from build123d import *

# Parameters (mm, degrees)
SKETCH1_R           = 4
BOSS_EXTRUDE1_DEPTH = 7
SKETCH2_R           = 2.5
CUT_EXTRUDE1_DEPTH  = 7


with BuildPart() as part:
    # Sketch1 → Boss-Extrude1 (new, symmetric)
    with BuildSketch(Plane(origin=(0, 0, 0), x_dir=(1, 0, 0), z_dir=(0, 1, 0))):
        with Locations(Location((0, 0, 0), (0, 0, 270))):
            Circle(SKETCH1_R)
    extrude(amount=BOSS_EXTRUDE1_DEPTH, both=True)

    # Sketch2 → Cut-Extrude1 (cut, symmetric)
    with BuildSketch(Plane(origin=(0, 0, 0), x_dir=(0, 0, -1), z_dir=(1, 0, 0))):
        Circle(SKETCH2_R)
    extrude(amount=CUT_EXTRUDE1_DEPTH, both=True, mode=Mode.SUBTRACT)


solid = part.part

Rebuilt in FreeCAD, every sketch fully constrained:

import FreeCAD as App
import Part
import Sketcher
Q = App.Units.Quantity

doc = App.newDocument("Part")
params = doc.addObject("Spreadsheet::Sheet", "Params")
for row, (alias, value) in enumerate([
    ("sketch1_diameter", "8 mm"),
    ("pad1_length", "14 mm"),
    ("sketch2_diameter", "5 mm"),
    ("pocket1_length", "14 mm"),
], start=1):
    params.set(f"A{row}", alias)
    params.set(f"B{row}", "=" + value)
    params.setAlias(f"B{row}", alias)

body = doc.addObject("PartDesign::Body", "Body")

sketch1 = body.newObject("Sketcher::SketchObject", "Sketch")
sketch1.AttachmentSupport = (doc.getObject("XZ_Plane"), [""])
sketch1.MapMode = "FlatFace"
sketch1.addGeometry(Part.Circle(App.Vector(0, 0, 0), App.Vector(0, 0, 1), 4), False)
sketch1.addConstraint([
    Sketcher.Constraint("Coincident", 0, 3, -1, 1),
    Sketcher.Constraint("Diameter", 0, Q("8 mm")),
])
sketch1.setExpression("Constraints[1]", "Params.sketch1_diameter")
pad1 = body.newObject("PartDesign::Pad", "Pad")
pad1.Profile = sketch1
pad1.setExpression("Length", "Params.pad1_length")
pad1.Midplane = True

sketch2 = body.newObject("Sketcher::SketchObject", "Sketch001")
sketch2.AttachmentSupport = (doc.getObject("YZ_Plane"), [""])
sketch2.MapMode = "FlatFace"
sketch2.addGeometry(Part.Circle(App.Vector(0, 0, 0), App.Vector(0, 0, 1), 2.5), False)
sketch2.addConstraint([
    Sketcher.Constraint("Coincident", 0, 3, -1, 1),
    Sketcher.Constraint("Diameter", 0, Q("5 mm")),
])
sketch2.setExpression("Constraints[1]", "Params.sketch2_diameter")
pocket1 = body.newObject("PartDesign::Pocket", "Pocket")
pocket1.Profile = sketch2
pocket1.setExpression("Length", "Params.pocket1_length")
pocket1.Midplane = True

doc.recompute()
